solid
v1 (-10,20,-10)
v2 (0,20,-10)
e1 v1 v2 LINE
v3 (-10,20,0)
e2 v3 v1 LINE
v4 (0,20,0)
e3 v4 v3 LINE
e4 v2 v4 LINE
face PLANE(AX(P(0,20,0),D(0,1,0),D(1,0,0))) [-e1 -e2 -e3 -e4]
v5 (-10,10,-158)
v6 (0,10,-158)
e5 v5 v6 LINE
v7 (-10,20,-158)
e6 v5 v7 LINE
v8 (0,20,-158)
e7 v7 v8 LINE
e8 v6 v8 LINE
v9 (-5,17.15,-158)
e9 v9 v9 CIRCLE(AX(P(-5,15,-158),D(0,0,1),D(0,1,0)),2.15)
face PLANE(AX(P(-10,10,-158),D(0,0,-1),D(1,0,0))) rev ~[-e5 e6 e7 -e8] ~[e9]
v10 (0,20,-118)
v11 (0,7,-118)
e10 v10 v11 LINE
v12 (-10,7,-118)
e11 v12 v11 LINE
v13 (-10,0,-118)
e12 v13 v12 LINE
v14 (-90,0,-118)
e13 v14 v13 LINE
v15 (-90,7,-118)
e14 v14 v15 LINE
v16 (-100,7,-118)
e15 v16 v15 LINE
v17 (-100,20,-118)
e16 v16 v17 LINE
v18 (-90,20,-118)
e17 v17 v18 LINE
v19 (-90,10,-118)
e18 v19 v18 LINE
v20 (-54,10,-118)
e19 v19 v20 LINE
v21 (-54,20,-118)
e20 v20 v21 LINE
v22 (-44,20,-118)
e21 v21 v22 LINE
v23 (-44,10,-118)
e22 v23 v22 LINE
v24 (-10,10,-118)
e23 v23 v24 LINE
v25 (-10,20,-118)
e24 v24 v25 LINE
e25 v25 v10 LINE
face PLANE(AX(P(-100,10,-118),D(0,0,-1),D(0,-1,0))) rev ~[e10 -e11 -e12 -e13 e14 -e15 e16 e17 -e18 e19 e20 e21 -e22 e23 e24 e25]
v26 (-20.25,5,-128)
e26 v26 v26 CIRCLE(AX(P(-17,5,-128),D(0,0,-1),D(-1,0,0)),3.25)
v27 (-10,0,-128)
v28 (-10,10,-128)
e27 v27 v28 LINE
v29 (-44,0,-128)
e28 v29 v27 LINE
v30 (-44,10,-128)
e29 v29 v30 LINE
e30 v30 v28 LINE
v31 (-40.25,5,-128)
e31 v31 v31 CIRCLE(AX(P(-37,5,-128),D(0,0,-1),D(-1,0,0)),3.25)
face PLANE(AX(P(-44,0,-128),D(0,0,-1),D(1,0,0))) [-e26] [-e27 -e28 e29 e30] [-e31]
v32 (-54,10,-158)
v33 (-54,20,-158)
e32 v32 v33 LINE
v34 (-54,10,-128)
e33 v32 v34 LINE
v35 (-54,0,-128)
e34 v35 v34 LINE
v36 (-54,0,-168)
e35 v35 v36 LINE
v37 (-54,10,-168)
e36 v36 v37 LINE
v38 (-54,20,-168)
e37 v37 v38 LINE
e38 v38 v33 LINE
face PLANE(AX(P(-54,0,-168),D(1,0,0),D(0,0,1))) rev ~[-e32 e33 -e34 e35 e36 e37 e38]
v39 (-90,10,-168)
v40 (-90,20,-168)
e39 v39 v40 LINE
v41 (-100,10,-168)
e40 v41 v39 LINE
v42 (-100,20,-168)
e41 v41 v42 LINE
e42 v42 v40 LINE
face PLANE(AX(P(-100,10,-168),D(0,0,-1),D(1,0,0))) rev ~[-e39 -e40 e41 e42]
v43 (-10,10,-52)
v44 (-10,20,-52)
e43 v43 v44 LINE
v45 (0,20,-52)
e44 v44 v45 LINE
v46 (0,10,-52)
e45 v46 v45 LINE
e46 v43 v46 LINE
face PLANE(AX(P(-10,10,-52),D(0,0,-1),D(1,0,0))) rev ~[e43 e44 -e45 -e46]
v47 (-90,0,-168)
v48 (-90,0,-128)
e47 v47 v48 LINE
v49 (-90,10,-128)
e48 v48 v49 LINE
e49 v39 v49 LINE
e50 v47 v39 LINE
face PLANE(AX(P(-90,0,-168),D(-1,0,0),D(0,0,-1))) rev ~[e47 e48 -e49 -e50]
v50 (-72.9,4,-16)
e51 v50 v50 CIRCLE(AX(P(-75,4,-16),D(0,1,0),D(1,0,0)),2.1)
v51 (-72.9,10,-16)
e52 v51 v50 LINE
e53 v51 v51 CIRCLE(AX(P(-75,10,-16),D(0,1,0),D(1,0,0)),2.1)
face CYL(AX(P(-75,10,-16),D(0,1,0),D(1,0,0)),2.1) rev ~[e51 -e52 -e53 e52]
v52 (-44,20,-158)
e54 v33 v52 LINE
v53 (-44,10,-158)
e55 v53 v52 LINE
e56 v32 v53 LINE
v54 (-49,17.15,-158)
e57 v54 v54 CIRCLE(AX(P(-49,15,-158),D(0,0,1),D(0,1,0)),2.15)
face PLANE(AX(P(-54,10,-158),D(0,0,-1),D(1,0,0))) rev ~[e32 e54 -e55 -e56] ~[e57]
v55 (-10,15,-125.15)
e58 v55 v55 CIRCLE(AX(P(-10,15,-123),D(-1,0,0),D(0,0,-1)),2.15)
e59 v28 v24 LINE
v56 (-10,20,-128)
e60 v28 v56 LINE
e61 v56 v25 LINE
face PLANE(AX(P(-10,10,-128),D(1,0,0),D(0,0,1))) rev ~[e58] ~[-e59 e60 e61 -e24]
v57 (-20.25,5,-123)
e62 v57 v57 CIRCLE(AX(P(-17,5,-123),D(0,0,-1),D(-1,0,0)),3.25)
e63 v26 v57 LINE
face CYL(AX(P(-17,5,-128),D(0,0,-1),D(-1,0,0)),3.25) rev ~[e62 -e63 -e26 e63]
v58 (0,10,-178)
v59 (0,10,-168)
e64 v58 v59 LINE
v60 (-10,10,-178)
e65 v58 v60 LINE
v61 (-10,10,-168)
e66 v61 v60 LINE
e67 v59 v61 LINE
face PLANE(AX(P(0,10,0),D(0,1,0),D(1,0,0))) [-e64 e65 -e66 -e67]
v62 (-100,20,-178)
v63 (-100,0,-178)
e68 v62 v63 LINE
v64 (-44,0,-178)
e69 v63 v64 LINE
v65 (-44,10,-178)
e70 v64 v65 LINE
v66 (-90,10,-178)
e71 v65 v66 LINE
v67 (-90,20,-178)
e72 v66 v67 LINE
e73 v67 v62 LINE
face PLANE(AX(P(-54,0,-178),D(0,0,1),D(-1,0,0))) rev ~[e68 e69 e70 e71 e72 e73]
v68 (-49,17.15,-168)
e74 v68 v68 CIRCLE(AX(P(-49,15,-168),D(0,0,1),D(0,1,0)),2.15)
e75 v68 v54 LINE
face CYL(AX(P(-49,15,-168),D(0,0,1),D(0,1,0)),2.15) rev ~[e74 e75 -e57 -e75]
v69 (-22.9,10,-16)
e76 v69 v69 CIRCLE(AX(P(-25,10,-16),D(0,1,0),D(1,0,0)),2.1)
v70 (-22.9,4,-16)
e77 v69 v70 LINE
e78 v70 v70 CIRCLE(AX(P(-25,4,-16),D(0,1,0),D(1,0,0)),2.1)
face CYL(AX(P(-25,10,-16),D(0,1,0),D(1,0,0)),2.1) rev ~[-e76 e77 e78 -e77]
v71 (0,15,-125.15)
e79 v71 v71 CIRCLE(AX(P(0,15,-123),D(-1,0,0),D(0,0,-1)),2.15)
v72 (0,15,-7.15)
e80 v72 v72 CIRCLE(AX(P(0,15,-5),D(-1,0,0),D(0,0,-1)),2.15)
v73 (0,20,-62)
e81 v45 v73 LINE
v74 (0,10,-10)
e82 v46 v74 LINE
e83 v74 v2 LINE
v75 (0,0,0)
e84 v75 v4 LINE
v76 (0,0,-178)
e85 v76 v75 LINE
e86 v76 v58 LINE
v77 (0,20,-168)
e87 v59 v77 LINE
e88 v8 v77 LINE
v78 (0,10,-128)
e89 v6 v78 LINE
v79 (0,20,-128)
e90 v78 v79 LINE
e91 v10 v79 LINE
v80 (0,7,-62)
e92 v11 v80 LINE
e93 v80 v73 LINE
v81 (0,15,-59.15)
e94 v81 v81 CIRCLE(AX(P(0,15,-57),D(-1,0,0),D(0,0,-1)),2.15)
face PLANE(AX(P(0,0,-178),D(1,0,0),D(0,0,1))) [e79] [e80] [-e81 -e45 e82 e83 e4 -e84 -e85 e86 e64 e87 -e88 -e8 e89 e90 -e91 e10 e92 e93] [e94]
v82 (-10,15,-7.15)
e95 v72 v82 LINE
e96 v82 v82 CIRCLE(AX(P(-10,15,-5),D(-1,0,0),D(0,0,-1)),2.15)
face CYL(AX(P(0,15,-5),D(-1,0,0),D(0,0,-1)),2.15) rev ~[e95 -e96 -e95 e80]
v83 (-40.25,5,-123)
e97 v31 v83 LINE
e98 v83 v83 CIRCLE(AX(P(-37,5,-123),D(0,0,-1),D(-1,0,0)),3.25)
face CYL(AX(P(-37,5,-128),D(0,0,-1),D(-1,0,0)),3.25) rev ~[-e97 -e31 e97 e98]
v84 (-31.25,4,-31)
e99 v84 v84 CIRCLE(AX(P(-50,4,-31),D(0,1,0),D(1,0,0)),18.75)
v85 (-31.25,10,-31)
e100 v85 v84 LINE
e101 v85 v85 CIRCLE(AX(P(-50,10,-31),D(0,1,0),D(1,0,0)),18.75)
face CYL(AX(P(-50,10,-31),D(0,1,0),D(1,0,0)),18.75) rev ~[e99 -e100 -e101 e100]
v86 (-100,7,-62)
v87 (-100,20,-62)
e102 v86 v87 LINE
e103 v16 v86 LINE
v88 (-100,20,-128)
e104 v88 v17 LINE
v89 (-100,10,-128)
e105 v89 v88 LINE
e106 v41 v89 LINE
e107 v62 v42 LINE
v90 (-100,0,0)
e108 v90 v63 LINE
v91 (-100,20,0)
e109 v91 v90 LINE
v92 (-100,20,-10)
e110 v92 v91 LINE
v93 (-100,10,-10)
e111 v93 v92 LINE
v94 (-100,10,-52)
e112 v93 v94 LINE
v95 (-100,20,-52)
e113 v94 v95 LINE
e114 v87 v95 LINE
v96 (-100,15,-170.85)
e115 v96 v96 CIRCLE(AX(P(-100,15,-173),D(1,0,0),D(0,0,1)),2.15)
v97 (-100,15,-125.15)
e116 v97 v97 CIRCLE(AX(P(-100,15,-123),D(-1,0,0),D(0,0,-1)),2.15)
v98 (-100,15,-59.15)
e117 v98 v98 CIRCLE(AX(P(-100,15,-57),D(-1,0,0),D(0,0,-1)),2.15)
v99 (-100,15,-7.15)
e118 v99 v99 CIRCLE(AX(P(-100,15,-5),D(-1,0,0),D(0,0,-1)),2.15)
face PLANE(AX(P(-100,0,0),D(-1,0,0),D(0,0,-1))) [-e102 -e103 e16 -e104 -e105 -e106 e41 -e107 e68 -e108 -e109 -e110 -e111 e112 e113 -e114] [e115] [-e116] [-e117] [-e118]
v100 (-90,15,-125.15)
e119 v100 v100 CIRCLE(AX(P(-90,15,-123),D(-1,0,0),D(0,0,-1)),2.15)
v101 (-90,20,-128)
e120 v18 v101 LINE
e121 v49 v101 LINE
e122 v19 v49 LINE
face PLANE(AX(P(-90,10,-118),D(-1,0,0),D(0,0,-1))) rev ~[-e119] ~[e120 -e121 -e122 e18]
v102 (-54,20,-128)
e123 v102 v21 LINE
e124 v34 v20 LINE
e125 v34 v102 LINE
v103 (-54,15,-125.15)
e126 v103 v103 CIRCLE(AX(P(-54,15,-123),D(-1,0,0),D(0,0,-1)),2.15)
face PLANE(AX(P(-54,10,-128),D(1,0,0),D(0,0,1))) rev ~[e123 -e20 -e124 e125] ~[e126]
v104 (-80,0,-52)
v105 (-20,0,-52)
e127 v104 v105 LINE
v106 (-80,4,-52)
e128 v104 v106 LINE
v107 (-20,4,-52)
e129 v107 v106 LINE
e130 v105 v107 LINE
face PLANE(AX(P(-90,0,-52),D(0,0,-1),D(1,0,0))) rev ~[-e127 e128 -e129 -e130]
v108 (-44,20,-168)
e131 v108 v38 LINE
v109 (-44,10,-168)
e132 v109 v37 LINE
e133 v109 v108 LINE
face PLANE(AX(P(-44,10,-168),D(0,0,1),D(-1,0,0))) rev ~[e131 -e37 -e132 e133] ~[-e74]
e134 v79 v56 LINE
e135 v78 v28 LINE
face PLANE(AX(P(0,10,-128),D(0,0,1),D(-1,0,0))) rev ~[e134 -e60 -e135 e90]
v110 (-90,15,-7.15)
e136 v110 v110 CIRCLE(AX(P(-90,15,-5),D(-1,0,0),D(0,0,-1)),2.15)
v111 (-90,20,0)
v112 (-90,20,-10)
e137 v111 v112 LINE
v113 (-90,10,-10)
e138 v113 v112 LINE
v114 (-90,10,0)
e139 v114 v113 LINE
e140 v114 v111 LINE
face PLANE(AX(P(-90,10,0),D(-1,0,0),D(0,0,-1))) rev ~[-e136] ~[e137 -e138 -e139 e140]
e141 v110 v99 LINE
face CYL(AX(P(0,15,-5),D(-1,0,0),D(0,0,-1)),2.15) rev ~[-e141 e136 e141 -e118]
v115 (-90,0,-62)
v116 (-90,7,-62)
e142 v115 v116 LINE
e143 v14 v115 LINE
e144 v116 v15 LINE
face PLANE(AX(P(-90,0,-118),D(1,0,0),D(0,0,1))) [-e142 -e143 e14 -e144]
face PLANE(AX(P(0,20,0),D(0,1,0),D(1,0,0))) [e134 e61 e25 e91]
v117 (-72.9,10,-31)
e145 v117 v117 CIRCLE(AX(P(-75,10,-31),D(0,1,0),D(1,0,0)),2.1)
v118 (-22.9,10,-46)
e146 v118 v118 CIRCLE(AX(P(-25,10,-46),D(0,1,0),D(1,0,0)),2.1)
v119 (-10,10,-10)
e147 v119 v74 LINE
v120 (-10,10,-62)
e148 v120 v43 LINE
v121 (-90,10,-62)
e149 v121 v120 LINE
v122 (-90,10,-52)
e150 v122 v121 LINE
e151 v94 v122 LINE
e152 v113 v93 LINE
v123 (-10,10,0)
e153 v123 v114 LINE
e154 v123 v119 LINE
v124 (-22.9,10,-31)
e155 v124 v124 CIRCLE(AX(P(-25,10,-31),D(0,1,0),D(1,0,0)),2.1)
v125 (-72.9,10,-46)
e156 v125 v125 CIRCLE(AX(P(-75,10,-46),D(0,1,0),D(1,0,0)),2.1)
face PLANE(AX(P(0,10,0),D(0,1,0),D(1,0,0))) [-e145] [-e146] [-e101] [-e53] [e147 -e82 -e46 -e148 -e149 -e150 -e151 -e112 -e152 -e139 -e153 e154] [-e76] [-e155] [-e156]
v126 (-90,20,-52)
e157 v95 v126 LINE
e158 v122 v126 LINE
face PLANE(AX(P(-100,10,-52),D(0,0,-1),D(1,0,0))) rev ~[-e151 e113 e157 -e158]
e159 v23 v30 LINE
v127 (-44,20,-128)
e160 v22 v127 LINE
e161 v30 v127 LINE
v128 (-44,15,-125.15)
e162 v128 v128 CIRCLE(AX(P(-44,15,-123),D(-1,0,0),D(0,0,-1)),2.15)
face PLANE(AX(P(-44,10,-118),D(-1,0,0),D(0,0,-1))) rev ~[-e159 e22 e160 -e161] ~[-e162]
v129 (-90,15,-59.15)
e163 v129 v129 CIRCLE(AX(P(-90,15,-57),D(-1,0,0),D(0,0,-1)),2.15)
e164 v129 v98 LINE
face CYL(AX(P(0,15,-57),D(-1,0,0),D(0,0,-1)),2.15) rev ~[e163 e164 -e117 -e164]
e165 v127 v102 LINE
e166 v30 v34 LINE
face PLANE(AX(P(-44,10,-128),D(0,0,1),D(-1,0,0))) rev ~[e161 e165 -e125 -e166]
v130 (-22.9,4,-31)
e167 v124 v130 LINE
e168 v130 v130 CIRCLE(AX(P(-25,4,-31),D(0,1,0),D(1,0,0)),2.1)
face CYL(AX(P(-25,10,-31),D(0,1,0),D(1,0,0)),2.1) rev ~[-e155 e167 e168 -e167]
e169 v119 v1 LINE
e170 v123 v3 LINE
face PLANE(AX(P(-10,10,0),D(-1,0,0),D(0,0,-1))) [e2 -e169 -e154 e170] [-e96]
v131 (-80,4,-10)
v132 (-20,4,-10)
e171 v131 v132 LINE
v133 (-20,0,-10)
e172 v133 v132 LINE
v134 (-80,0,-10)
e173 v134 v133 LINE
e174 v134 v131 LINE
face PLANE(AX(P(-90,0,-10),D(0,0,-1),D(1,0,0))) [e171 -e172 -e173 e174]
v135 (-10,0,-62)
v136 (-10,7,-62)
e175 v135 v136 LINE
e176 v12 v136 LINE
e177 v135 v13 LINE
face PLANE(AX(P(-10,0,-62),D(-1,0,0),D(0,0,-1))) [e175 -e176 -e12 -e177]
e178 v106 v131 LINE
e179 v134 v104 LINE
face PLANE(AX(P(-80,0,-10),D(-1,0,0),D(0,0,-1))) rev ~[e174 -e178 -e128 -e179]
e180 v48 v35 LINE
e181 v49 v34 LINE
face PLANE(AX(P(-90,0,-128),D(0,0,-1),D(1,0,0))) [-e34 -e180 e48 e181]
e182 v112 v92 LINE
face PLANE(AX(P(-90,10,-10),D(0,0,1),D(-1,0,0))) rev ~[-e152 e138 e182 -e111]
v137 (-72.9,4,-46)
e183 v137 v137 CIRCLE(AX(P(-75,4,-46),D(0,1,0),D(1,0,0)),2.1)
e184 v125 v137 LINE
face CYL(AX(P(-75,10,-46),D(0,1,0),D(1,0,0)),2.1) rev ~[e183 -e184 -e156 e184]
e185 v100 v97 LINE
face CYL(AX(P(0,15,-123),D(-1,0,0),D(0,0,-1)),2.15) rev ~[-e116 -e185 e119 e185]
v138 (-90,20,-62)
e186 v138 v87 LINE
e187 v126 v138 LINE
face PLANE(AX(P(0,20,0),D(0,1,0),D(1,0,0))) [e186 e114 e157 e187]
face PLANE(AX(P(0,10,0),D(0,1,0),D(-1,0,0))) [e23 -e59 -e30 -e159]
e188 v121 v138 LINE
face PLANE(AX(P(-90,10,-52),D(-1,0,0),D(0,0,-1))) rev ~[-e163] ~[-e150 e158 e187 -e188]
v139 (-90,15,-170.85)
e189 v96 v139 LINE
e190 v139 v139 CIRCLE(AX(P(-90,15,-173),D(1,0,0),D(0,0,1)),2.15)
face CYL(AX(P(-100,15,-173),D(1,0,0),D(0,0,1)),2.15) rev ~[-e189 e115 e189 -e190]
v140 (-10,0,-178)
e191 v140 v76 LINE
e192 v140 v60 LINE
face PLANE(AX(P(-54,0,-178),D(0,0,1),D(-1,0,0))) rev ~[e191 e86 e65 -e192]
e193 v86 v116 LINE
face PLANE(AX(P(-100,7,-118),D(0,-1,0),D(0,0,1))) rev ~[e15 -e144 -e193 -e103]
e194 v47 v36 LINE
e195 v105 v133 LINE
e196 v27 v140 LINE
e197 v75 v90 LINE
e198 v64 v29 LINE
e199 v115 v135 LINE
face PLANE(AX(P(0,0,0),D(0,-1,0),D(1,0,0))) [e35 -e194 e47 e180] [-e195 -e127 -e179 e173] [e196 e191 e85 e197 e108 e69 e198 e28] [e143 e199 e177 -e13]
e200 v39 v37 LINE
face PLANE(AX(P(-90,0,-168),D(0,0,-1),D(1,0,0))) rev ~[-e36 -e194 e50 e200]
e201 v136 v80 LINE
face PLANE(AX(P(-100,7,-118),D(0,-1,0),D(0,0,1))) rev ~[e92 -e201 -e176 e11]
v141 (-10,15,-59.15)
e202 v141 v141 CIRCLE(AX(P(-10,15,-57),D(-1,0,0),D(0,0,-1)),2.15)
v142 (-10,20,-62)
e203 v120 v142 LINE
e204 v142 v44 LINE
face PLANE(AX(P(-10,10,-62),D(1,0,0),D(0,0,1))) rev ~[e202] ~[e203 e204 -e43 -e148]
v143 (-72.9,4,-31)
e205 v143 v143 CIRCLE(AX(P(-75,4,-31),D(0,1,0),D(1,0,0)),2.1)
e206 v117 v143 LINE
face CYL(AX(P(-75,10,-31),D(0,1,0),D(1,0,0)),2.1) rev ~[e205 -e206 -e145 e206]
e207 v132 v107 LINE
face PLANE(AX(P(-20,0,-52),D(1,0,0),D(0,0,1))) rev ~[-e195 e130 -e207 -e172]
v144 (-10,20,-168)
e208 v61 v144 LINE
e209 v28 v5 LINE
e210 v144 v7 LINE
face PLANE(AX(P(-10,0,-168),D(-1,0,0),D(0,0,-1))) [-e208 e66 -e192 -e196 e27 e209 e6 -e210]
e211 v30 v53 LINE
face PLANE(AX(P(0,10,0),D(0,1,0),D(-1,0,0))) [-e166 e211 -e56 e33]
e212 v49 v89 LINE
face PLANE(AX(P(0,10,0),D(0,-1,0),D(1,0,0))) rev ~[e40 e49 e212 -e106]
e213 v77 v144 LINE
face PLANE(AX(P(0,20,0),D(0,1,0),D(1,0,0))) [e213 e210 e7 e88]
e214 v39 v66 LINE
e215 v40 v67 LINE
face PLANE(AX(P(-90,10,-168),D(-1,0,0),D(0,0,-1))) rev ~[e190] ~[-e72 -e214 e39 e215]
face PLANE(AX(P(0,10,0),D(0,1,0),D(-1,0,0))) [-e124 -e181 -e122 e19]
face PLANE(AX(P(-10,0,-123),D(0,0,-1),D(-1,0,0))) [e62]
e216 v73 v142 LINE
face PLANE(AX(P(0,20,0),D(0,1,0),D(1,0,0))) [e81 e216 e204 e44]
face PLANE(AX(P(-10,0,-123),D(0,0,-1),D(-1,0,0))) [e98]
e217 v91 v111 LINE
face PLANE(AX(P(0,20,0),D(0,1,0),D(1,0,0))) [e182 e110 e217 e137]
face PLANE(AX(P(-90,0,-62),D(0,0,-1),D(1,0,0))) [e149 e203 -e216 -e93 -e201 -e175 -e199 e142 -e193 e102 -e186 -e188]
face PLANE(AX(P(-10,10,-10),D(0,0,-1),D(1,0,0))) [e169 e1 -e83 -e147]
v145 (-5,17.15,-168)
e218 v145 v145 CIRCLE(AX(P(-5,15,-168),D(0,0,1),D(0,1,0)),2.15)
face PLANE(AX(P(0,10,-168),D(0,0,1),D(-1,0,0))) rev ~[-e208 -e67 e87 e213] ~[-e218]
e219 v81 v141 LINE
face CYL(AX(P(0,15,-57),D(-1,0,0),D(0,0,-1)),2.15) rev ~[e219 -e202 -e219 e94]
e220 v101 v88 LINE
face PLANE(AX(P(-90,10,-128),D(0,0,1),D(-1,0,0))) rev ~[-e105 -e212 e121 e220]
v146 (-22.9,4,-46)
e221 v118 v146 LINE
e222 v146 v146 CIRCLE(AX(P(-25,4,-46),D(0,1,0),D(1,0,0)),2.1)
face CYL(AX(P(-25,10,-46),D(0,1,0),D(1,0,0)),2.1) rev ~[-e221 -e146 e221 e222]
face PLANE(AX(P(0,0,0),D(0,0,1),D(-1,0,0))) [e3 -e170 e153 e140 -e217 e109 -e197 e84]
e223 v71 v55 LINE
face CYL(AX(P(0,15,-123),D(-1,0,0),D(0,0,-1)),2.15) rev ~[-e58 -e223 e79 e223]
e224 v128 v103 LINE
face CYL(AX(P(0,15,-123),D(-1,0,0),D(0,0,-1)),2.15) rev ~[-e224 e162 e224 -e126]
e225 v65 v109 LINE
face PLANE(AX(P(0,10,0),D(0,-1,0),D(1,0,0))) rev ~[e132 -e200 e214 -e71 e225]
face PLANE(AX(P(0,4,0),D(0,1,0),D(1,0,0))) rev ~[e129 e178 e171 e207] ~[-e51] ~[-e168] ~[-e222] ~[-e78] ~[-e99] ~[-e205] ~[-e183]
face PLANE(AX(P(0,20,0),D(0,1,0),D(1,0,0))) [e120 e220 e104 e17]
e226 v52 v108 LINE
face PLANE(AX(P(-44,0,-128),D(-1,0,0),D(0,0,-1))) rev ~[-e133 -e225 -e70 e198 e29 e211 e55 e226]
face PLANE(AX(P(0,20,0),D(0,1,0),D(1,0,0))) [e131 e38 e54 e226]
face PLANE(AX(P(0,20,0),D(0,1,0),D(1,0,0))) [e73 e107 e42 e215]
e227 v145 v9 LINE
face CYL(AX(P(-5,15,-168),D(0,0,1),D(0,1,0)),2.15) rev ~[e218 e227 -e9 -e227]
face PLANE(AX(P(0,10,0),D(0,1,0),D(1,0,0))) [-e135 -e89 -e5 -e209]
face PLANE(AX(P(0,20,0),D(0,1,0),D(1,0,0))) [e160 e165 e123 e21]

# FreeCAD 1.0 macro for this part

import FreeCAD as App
import Part
import Sketcher
from FreeCAD import Vector
Q = App.Units.Quantity


def add_polygon(sketch, points):
    """Adds a closed chain of lines whose ends are joined by coincident constraints."""
    first, n = sketch.GeometryCount, len(points)
    for a, b in zip(points, points[1:] + points[:1]):
        sketch.addGeometry(Part.LineSegment(App.Vector(*a, 0), App.Vector(*b, 0)), False)
    for i in range(n):
        sketch.addConstraint(Sketcher.Constraint("Coincident", first + i, 2, first + (i + 1) % n, 1))

doc = App.newDocument("Part")
body = doc.addObject("PartDesign::Body", "Body")

sketch1 = body.newObject("Sketcher::SketchObject", "Sketch")
sketch1.AttachmentSupport = (doc.getObject("XZ_Plane"), [""])
sketch1.MapMode = "FlatFace"
add_polygon(sketch1, [(-100, 0), (0, 0), (0, -178), (-54, -178), (-54, -128), (-90, -128), (-90, -178), (-100, -178)])
add_polygon(sketch1, [(-10, -168), (-10, -128), (-44, -128), (-44, -168)])
add_polygon(sketch1, [(-10, -62), (-90, -62), (-90, -118), (-10, -118)])
add_polygon(sketch1, [(-10, -10), (-90, -10), (-90, -52), (-10, -52)])
sketch1.addConstraint(Sketcher.Constraint("Horizontal", 0))
sketch1.addConstraint(Sketcher.Constraint("Vertical", 1))
sketch1.addConstraint(Sketcher.Constraint("Horizontal", 2))
sketch1.addConstraint(Sketcher.Constraint("Vertical", 3))
sketch1.addConstraint(Sketcher.Constraint("Horizontal", 4))
sketch1.addConstraint(Sketcher.Constraint("Vertical", 5))
sketch1.addConstraint(Sketcher.Constraint("Horizontal", 6))
sketch1.addConstraint(Sketcher.Constraint("Vertical", 7))
sketch1.addConstraint(Sketcher.Constraint("Vertical", 8))
sketch1.addConstraint(Sketcher.Constraint("Horizontal", 9))
sketch1.addConstraint(Sketcher.Constraint("Vertical", 10))
sketch1.addConstraint(Sketcher.Constraint("Horizontal", 11))
sketch1.addConstraint(Sketcher.Constraint("Horizontal", 12))
sketch1.addConstraint(Sketcher.Constraint("Vertical", 13))
sketch1.addConstraint(Sketcher.Constraint("Horizontal", 14))
sketch1.addConstraint(Sketcher.Constraint("Vertical", 15))
sketch1.addConstraint(Sketcher.Constraint("Horizontal", 16))
sketch1.addConstraint(Sketcher.Constraint("Vertical", 17))
sketch1.addConstraint(Sketcher.Constraint("Horizontal", 18))
sketch1.addConstraint(Sketcher.Constraint("Vertical", 19))
sketch1.addConstraint(Sketcher.Constraint("Coincident", 0, 2, -1, 1))
sketch1.addConstraint(Sketcher.Constraint("Horizontal", 2, 2, 5, 2))
sketch1.addConstraint(Sketcher.Constraint("Horizontal", 4, 2, 8, 2))
sketch1.addConstraint(Sketcher.Constraint("Vertical", 5, 2, 12, 2))
sketch1.addConstraint(Sketcher.Constraint("Vertical", 11, 2, 14, 2))
sketch1.addConstraint(Sketcher.Constraint("Vertical", 13, 2, 16, 2))
sketch1.addConstraint(Sketcher.Constraint("Vertical", 15, 2, 18, 2))
sketch1.addConstraint(Sketcher.Constraint("DistanceX", 4, 2, 4, 1, Q("36 mm")))
sketch1.addConstraint(Sketcher.Constraint("DistanceX", 6, 2, 6, 1, Q("10 mm")))
sketch1.addConstraint(Sketcher.Constraint("DistanceX", 9, 2, 9, 1, Q("34 mm")))
sketch1.addConstraint(Sketcher.Constraint("DistanceX", 12, 2, 12, 1, Q("80 mm")))
sketch1.addConstraint(Sketcher.Constraint("DistanceY", 8, 1, 8, 2, Q("40 mm")))
sketch1.addConstraint(Sketcher.Constraint("DistanceY", 13, 2, 13, 1, Q("56 mm")))
sketch1.addConstraint(Sketcher.Constraint("DistanceY", 17, 2, 17, 1, Q("42 mm")))
sketch1.addConstraint(Sketcher.Constraint("DistanceX", 8, 2, -1, 1, Q("10 mm")))
sketch1.addConstraint(Sketcher.Constraint("DistanceY", 16, 2, -1, 1, Q("10 mm")))
sketch1.addConstraint(Sketcher.Constraint("DistanceY", 2, 2, 10, 2, Q("10 mm")))
sketch1.addConstraint(Sketcher.Constraint("DistanceY", 4, 2, 13, 2, Q("10 mm")))
sketch1.addConstraint(Sketcher.Constraint("DistanceY", 12, 2, 17, 2, Q("10 mm")))
pad1 = body.newObject("PartDesign::Pad", "Pad")
pad1.Profile = sketch1
pad1.Length = 10
pad1.Reversed = True

sketch2 = body.newObject("Sketcher::SketchObject", "Sketch001")
sketch2.AttachmentSupport = (doc.getObject("XZ_Plane"), [""])
sketch2.MapMode = "FlatFace"
sketch2.AttachmentOffset = App.Placement(Vector(0, 0, -10), App.Rotation())
add_polygon(sketch2, [(-100, -10), (-100, 0), (-90, 0), (-90, -10)])
add_polygon(sketch2, [(-10, -10), (-10, 0), (0, 0), (0, -10)])
add_polygon(sketch2, [(-100, -62), (-100, -52), (-90, -52), (-90, -62)])
add_polygon(sketch2, [(-10, -62), (-10, -52), (0, -52), (0, -62)])
add_polygon(sketch2, [(-100, -128), (-100, -118), (-90, -118), (-90, -128)])
add_polygon(sketch2, [(-100, -168), (-100, -158), (-90, -158), (-90, -168)])
add_polygon(sketch2, [(-54, -128), (-54, -118), (-44, -118), (-44, -128)])
add_polygon(sketch2, [(-10, -118), (0, -118), (0, -128), (-10, -128)])
add_polygon(sketch2, [(-10, -168), (0, -168), (0, -178), (-10, -178)])
add_polygon(sketch2, [(-54, -158), (-44, -158), (-44, -168), (-54, -168)])
sketch2.addConstraint(Sketcher.Constraint("Vertical", 0))
sketch2.addConstraint(Sketcher.Constraint("Horizontal", 1))
sketch2.addConstraint(Sketcher.Constraint("Vertical", 2))
sketch2.addConstraint(Sketcher.Constraint("Horizontal", 3))
sketch2.addConstraint(Sketcher.Constraint("Vertical", 4))
sketch2.addConstraint(Sketcher.Constraint("Horizontal", 5))
sketch2.addConstraint(Sketcher.Constraint("Vertical", 6))
sketch2.addConstraint(Sketcher.Constraint("Horizontal", 7))
sketch2.addConstraint(Sketcher.Constraint("Vertical", 8))
sketch2.addConstraint(Sketcher.Constraint("Horizontal", 9))
sketch2.addConstraint(Sketcher.Constraint("Vertical", 10))
sketch2.addConstraint(Sketcher.Constraint("Horizontal", 11))
sketch2.addConstraint(Sketcher.Constraint("Vertical", 12))
sketch2.addConstraint(Sketcher.Constraint("Horizontal", 13))
sketch2.addConstraint(Sketcher.Constraint("Vertical", 14))
sketch2.addConstraint(Sketcher.Constraint("Horizontal", 15))
sketch2.addConstraint(Sketcher.Constraint("Vertical", 16))
sketch2.addConstraint(Sketcher.Constraint("Horizontal", 17))
sketch2.addConstraint(Sketcher.Constraint("Vertical", 18))
sketch2.addConstraint(Sketcher.Constraint("Horizontal", 19))
sketch2.addConstraint(Sketcher.Constraint("Vertical", 20))
sketch2.addConstraint(Sketcher.Constraint("Horizontal", 21))
sketch2.addConstraint(Sketcher.Constraint("Vertical", 22))
sketch2.addConstraint(Sketcher.Constraint("Horizontal", 23))
sketch2.addConstraint(Sketcher.Constraint("Vertical", 24))
sketch2.addConstraint(Sketcher.Constraint("Horizontal", 25))
sketch2.addConstraint(Sketcher.Constraint("Vertical", 26))
sketch2.addConstraint(Sketcher.Constraint("Horizontal", 27))
sketch2.addConstraint(Sketcher.Constraint("Horizontal", 28))
sketch2.addConstraint(Sketcher.Constraint("Vertical", 29))
sketch2.addConstraint(Sketcher.Constraint("Horizontal", 30))
sketch2.addConstraint(Sketcher.Constraint("Vertical", 31))
sketch2.addConstraint(Sketcher.Constraint("Horizontal", 32))
sketch2.addConstraint(Sketcher.Constraint("Vertical", 33))
sketch2.addConstraint(Sketcher.Constraint("Horizontal", 34))
sketch2.addConstraint(Sketcher.Constraint("Vertical", 35))
sketch2.addConstraint(Sketcher.Constraint("Horizontal", 36))
sketch2.addConstraint(Sketcher.Constraint("Vertical", 37))
sketch2.addConstraint(Sketcher.Constraint("Horizontal", 38))
sketch2.addConstraint(Sketcher.Constraint("Vertical", 39))
sketch2.addConstraint(Sketcher.Constraint("Coincident", 5, 2, -1, 1))
sketch2.addConstraint(Sketcher.Constraint("PointOnObject", 0, 2, -1))
sketch2.addConstraint(Sketcher.Constraint("PointOnObject", 13, 2, -2))
sketch2.addConstraint(Sketcher.Constraint("PointOnObject", 28, 2, -2))
sketch2.addConstraint(Sketcher.Constraint("PointOnObject", 32, 2, -2))
sketch2.addConstraint(Sketcher.Constraint("Horizontal", 3, 2, 6, 2))
sketch2.addConstraint(Sketcher.Constraint("Horizontal", 9, 2, 12, 2))
sketch2.addConstraint(Sketcher.Constraint("Horizontal", 11, 2, 14, 2))
sketch2.addConstraint(Sketcher.Constraint("Horizontal", 17, 2, 24, 2))
sketch2.addConstraint(Sketcher.Constraint("Horizontal", 19, 2, 26, 2))
sketch2.addConstraint(Sketcher.Constraint("Horizontal", 25, 2, 28, 2))
sketch2.addConstraint(Sketcher.Constraint("Horizontal", 27, 2, 29, 2))
sketch2.addConstraint(Sketcher.Constraint("Horizontal", 23, 2, 32, 2))
sketch2.addConstraint(Sketcher.Constraint("Horizontal", 21, 2, 36, 2))
sketch2.addConstraint(Sketcher.Constraint("Horizontal", 35, 2, 37, 2))
sketch2.addConstraint(Sketcher.Constraint("Vertical", 3, 2, 8, 2))
sketch2.addConstraint(Sketcher.Constraint("Vertical", 2, 2, 9, 2))
sketch2.addConstraint(Sketcher.Constraint("Vertical", 7, 2, 12, 2))
sketch2.addConstraint(Sketcher.Constraint("Vertical", 11, 2, 16, 2))
sketch2.addConstraint(Sketcher.Constraint("Vertical", 10, 2, 17, 2))
sketch2.addConstraint(Sketcher.Constraint("Vertical", 19, 2, 20, 2))
sketch2.addConstraint(Sketcher.Constraint("Vertical", 18, 2, 21, 2))
sketch2.addConstraint(Sketcher.Constraint("Vertical", 15, 2, 30, 2))
sketch2.addConstraint(Sketcher.Constraint("Vertical", 31, 2, 34, 2))
sketch2.addConstraint(Sketcher.Constraint("Vertical", 26, 2, 36, 2))
sketch2.addConstraint(Sketcher.Constraint("Vertical", 27, 2, 38, 2))
sketch2.addConstraint(Sketcher.Constraint("Equal", 3, 5))
sketch2.addConstraint(Sketcher.Constraint("Equal", 23, 25))
sketch2.addConstraint(Sketcher.Constraint("Equal", 38, 0))
sketch2.addConstraint(Sketcher.Constraint("Equal", 6, 8))
sketch2.addConstraint(Sketcher.Constraint("Equal", 14, 16))
sketch2.addConstraint(Sketcher.Constraint("Equal", 18, 20))
sketch2.addConstraint(Sketcher.Constraint("Equal", 31, 33))
sketch2.addConstraint(Sketcher.Constraint("DistanceX", 1, 1, 1, 2, Q("10 mm")))
sketch2.addConstraint(Sketcher.Constraint("DistanceX", 0, 2, -1, 1, Q("100 mm")))
sketch2.addConstraint(Sketcher.Constraint("DistanceY", 8, 2, -1, 1, Q("52 mm")))
sketch2.addConstraint(Sketcher.Constraint("DistanceY", 16, 2, -1, 1, Q("118 mm")))
sketch2.addConstraint(Sketcher.Constraint("DistanceY", 20, 2, -1, 1, Q("158 mm")))
sketch2.addConstraint(Sketcher.Constraint("DistanceX", 24, 2, -1, 1, Q("54 mm")))
pad2 = body.newObject("PartDesign::Pad", "Pad001")
pad2.Profile = sketch2
pad2.Length = 10
pad2.Reversed = True

sketch3 = body.newObject("Sketcher::SketchObject", "Sketch002")
sketch3.AttachmentSupport = (doc.getObject("XZ_Plane"), [""])
sketch3.MapMode = "FlatFace"
add_polygon(sketch3, [(-80, -10), (-90, -10), (-90, -52), (-80, -52)])
add_polygon(sketch3, [(-10, -10), (-20, -10), (-20, -52), (-10, -52)])
sketch3.addConstraint(Sketcher.Constraint("Horizontal", 0))
sketch3.addConstraint(Sketcher.Constraint("Vertical", 1))
sketch3.addConstraint(Sketcher.Constraint("Horizontal", 2))
sketch3.addConstraint(Sketcher.Constraint("Vertical", 3))
sketch3.addConstraint(Sketcher.Constraint("Horizontal", 4))
sketch3.addConstraint(Sketcher.Constraint("Vertical", 5))
sketch3.addConstraint(Sketcher.Constraint("Horizontal", 6))
sketch3.addConstraint(Sketcher.Constraint("Vertical", 7))
sketch3.addConstraint(Sketcher.Constraint("Horizontal", 3, 2, 4, 2))
sketch3.addConstraint(Sketcher.Constraint("Horizontal", 2, 2, 5, 2))
sketch3.addConstraint(Sketcher.Constraint("Equal", 2, 4))
sketch3.addConstraint(Sketcher.Constraint("DistanceX", 0, 2, 0, 1, Q("10 mm")))
sketch3.addConstraint(Sketcher.Constraint("DistanceY", 0, 2, -1, 1, Q("10 mm")))
sketch3.addConstraint(Sketcher.Constraint("DistanceX", 6, 2, -1, 1, Q("10 mm")))
sketch3.addConstraint(Sketcher.Constraint("DistanceX", 3, 2, 4, 2, Q("60 mm")))
sketch3.addConstraint(Sketcher.Constraint("DistanceY", 1, 2, 1, 1, Q("42 mm")))
pad3 = body.newObject("PartDesign::Pad", "Pad002")
pad3.Profile = sketch3
pad3.Length = 10
pad3.Reversed = True

sketch4 = body.newObject("Sketcher::SketchObject", "Sketch003")
sketch4.AttachmentSupport = (doc.getObject("XZ_Plane"), [""])
sketch4.MapMode = "FlatFace"
sketch4.AttachmentOffset = App.Placement(Vector(0, 0, -10), App.Rotation())
add_polygon(sketch4, [(-80, -52), (-80, -10), (-20, -10), (-20, -52)])
sketch4.addGeometry(Part.Circle(Vector(-75, -16, 0), Vector(0, 0, 1), 2.1), False)
sketch4.addGeometry(Part.Circle(Vector(-25, -16, 0), Vector(0, 0, 1), 2.1), False)
sketch4.addGeometry(Part.Circle(Vector(-75, -31, 0), Vector(0, 0, 1), 2.1), False)
sketch4.addGeometry(Part.Circle(Vector(-75, -46, 0), Vector(0, 0, 1), 2.1), False)
sketch4.addGeometry(Part.Circle(Vector(-50, -31, 0), Vector(0, 0, 1), 18.75), False)
sketch4.addGeometry(Part.Circle(Vector(-25, -31, 0), Vector(0, 0, 1), 2.1), False)
sketch4.addGeometry(Part.Circle(Vector(-25, -46, 0), Vector(0, 0, 1), 2.1), False)
sketch4.addConstraint(Sketcher.Constraint("Vertical", 0))
sketch4.addConstraint(Sketcher.Constraint("Horizontal", 1))
sketch4.addConstraint(Sketcher.Constraint("Vertical", 2))
sketch4.addConstraint(Sketcher.Constraint("Horizontal", 3))
sketch4.addConstraint(Sketcher.Constraint("Equal", 4, 5))
sketch4.addConstraint(Sketcher.Constraint("Equal", 5, 6))
sketch4.addConstraint(Sketcher.Constraint("Equal", 6, 7))
sketch4.addConstraint(Sketcher.Constraint("Equal", 7, 9))
sketch4.addConstraint(Sketcher.Constraint("Equal", 9, 10))
sketch4.addConstraint(Sketcher.Constraint("Horizontal", 4, 3, 5, 3))
sketch4.addConstraint(Sketcher.Constraint("Horizontal", 6, 3, 8, 3))
sketch4.addConstraint(Sketcher.Constraint("Horizontal", 8, 3, 9, 3))
sketch4.addConstraint(Sketcher.Constraint("Horizontal", 7, 3, 10, 3))
sketch4.addConstraint(Sketcher.Constraint("Vertical", 4, 3, 6, 3))
sketch4.addConstraint(Sketcher.Constraint("Vertical", 6, 3, 7, 3))
sketch4.addConstraint(Sketcher.Constraint("Vertical", 5, 3, 9, 3))
sketch4.addConstraint(Sketcher.Constraint("Vertical", 9, 3, 10, 3))
sketch4.addConstraint(Sketcher.Constraint("Diameter", 4, Q("4.2 mm")))
sketch4.addConstraint(Sketcher.Constraint("Diameter", 8, Q("37.5 mm")))
sketch4.addConstraint(Sketcher.Constraint("DistanceX", 5, 3, -1, 1, Q("25 mm")))
sketch4.addConstraint(Sketcher.Constraint("DistanceY", 6, 3, 4, 3, Q("15 mm")))
sketch4.addConstraint(Sketcher.Constraint("DistanceY", 7, 3, 6, 3, Q("15 mm")))
sketch4.addConstraint(Sketcher.Constraint("DistanceX", 6, 3, 8, 3, Q("25 mm")))
sketch4.addConstraint(Sketcher.Constraint("DistanceX", 8, 3, 5, 3, Q("25 mm")))
sketch4.addConstraint(Sketcher.Constraint("DistanceY", 6, 3, 0, 2, Q("21 mm")))
sketch4.addConstraint(Sketcher.Constraint("DistanceX", 0, 2, 8, 3, Q("30 mm")))
sketch4.addConstraint(Sketcher.Constraint("DistanceX", 8, 3, 1, 2, Q("30 mm")))
sketch4.addConstraint(Sketcher.Constraint("DistanceY", 2, 2, 9, 3, Q("21 mm")))
sketch4.addConstraint(Sketcher.Constraint("DistanceY", 4, 3, -1, 1, Q("16 mm")))
pad4 = body.newObject("PartDesign::Pad", "Pad003")
pad4.Profile = sketch4
pad4.Length = 6

sketch5 = body.newObject("Sketcher::SketchObject", "Sketch004")
sketch5.AttachmentSupport = (doc.getObject("YZ_Plane"), [""])
sketch5.MapMode = "FlatFace"
sketch5.addGeometry(Part.Circle(Vector(15, -173, 0), Vector(0, 0, 1), 2.15), False)
sketch5.addConstraint(Sketcher.Constraint("Diameter", 0, Q("4.3 mm")))
sketch5.addConstraint(Sketcher.Constraint("DistanceX", -1, 1, 0, 3, Q("15 mm")))
sketch5.addConstraint(Sketcher.Constraint("DistanceY", 0, 3, -1, 1, Q("173 mm")))
doc.recompute()
hole = body.newObject("PartDesign::Hole", "Hole")
hole.Profile = sketch5
hole.ThreadType = "None"
hole.Diameter = 4.3
hole.DepthType = "ThroughAll"

sketch6 = body.newObject("Sketcher::SketchObject", "Sketch005")
sketch6.AttachmentSupport = (doc.getObject("YZ_Plane"), [""])
sketch6.MapMode = "FlatFace"
sketch6.addGeometry(Part.Circle(Vector(15, -123, 0), Vector(0, 0, 1), 2.15), False)
sketch6.addConstraint(Sketcher.Constraint("Diameter", 0, Q("4.3 mm")))
sketch6.addConstraint(Sketcher.Constraint("DistanceX", -1, 1, 0, 3, Q("15 mm")))
sketch6.addConstraint(Sketcher.Constraint("DistanceY", 0, 3, -1, 1, Q("123 mm")))
doc.recompute()
hole2 = body.newObject("PartDesign::Hole", "Hole001")
hole2.Profile = sketch6
hole2.ThreadType = "None"
hole2.Diameter = 4.3
hole2.DepthType = "ThroughAll"

sketch7 = body.newObject("Sketcher::SketchObject", "Sketch006")
sketch7.AttachmentSupport = (doc.getObject("YZ_Plane"), [""])
sketch7.MapMode = "FlatFace"
sketch7.addGeometry(Part.Circle(Vector(15, -57, 0), Vector(0, 0, 1), 2.15), False)
sketch7.addConstraint(Sketcher.Constraint("Diameter", 0, Q("4.3 mm")))
sketch7.addConstraint(Sketcher.Constraint("DistanceX", -1, 1, 0, 3, Q("15 mm")))
sketch7.addConstraint(Sketcher.Constraint("DistanceY", 0, 3, -1, 1, Q("57 mm")))
doc.recompute()
hole3 = body.newObject("PartDesign::Hole", "Hole002")
hole3.Profile = sketch7
hole3.ThreadType = "None"
hole3.Diameter = 4.3
hole3.DepthType = "ThroughAll"

sketch8 = body.newObject("Sketcher::SketchObject", "Sketch007")
sketch8.AttachmentSupport = (doc.getObject("YZ_Plane"), [""])
sketch8.MapMode = "FlatFace"
sketch8.addGeometry(Part.Circle(Vector(15, -5, 0), Vector(0, 0, 1), 2.15), False)
sketch8.addConstraint(Sketcher.Constraint("Diameter", 0, Q("4.3 mm")))
sketch8.addConstraint(Sketcher.Constraint("DistanceX", -1, 1, 0, 3, Q("15 mm")))
sketch8.addConstraint(Sketcher.Constraint("DistanceY", 0, 3, -1, 1, Q("5 mm")))
doc.recompute()
hole4 = body.newObject("PartDesign::Hole", "Hole003")
hole4.Profile = sketch8
hole4.ThreadType = "None"
hole4.Diameter = 4.3
hole4.DepthType = "ThroughAll"

sketch9 = body.newObject("Sketcher::SketchObject", "Sketch008")
sketch9.AttachmentSupport = (doc.getObject("YZ_Plane"), [""])
sketch9.MapMode = "FlatFace"
sketch9.AttachmentOffset = App.Placement(Vector(0, 0, -100), App.Rotation())
add_polygon(sketch9, [(7, -62), (10, -62), (10, -118), (7, -118)])
sketch9.addConstraint(Sketcher.Constraint("Horizontal", 0))
sketch9.addConstraint(Sketcher.Constraint("Vertical", 1))
sketch9.addConstraint(Sketcher.Constraint("Horizontal", 2))
sketch9.addConstraint(Sketcher.Constraint("Vertical", 3))
sketch9.addConstraint(Sketcher.Constraint("DistanceX", 0, 1, 0, 2, Q("3 mm")))
sketch9.addConstraint(Sketcher.Constraint("DistanceY", 1, 2, 1, 1, Q("56 mm")))
sketch9.addConstraint(Sketcher.Constraint("DistanceX", -1, 1, 0, 2, Q("10 mm")))
sketch9.addConstraint(Sketcher.Constraint("DistanceY", 0, 2, -1, 1, Q("62 mm")))
pocket1 = body.newObject("PartDesign::Pocket", "Pocket")
pocket1.Profile = sketch9
pocket1.Length = 100
pocket1.Reversed = True

sketch10 = body.newObject("Sketcher::SketchObject", "Sketch009")
sketch10.AttachmentSupport = (doc.getObject("XY_Plane"), [""])
sketch10.MapMode = "FlatFace"
sketch10.AttachmentOffset = App.Placement(Vector(0, 0, -168), App.Rotation())
sketch10.addGeometry(Part.Circle(Vector(-95, 15, 0), Vector(0, 0, 1), 2.15), False)
sketch10.addConstraint(Sketcher.Constraint("Diameter", 0, Q("4.3 mm")))
sketch10.addConstraint(Sketcher.Constraint("DistanceX", 0, 3, -1, 1, Q("95 mm")))
sketch10.addConstraint(Sketcher.Constraint("DistanceY", -1, 1, 0, 3, Q("15 mm")))
doc.recompute()
hole5 = body.newObject("PartDesign::Hole", "Hole004")
hole5.Profile = sketch10
hole5.ThreadType = "None"
hole5.Diameter = 4.3
hole5.DepthType = "Dimension"
hole5.Depth = 10
hole5.DrillPoint = "Angled"
hole5.DrillPointAngle = 118
hole5.Reversed = True

sketch11 = body.newObject("Sketcher::SketchObject", "Sketch010")
sketch11.AttachmentSupport = (doc.getObject("XY_Plane"), [""])
sketch11.MapMode = "FlatFace"
sketch11.AttachmentOffset = App.Placement(Vector(0, 0, -168), App.Rotation())
sketch11.addGeometry(Part.Circle(Vector(-49, 15, 0), Vector(0, 0, 1), 2.15), False)
sketch11.addConstraint(Sketcher.Constraint("Diameter", 0, Q("4.3 mm")))
sketch11.addConstraint(Sketcher.Constraint("DistanceX", 0, 3, -1, 1, Q("49 mm")))
sketch11.addConstraint(Sketcher.Constraint("DistanceY", -1, 1, 0, 3, Q("15 mm")))
doc.recompute()
hole6 = body.newObject("PartDesign::Hole", "Hole005")
hole6.Profile = sketch11
hole6.ThreadType = "None"
hole6.Diameter = 4.3
hole6.DepthType = "Dimension"
hole6.Depth = 10
hole6.DrillPoint = "Angled"
hole6.DrillPointAngle = 118
hole6.Reversed = True

sketch12 = body.newObject("Sketcher::SketchObject", "Sketch011")
sketch12.AttachmentSupport = (doc.getObject("XZ_Plane"), [""])
sketch12.MapMode = "FlatFace"
add_polygon(sketch12, [(-54, -168), (-90, -168), (-90, -178), (-54, -178)])
sketch12.addConstraint(Sketcher.Constraint("Horizontal", 0))
sketch12.addConstraint(Sketcher.Constraint("Vertical", 1))
sketch12.addConstraint(Sketcher.Constraint("Horizontal", 2))
sketch12.addConstraint(Sketcher.Constraint("Vertical", 3))
sketch12.addConstraint(Sketcher.Constraint("DistanceX", 0, 2, 0, 1, Q("36 mm")))
sketch12.addConstraint(Sketcher.Constraint("DistanceY", 1, 2, 1, 1, Q("10 mm")))
sketch12.addConstraint(Sketcher.Constraint("DistanceX", 0, 2, -1, 1, Q("90 mm")))
sketch12.addConstraint(Sketcher.Constraint("DistanceY", 0, 2, -1, 1, Q("168 mm")))
pad5 = body.newObject("PartDesign::Pad", "Pad004")
pad5.Profile = sketch12
pad5.Length = 10
pad5.Reversed = True

sketch13 = body.newObject("Sketcher::SketchObject", "Sketch012")
sketch13.AttachmentSupport = (doc.getObject("XZ_Plane"), [""])
sketch13.MapMode = "FlatFace"
add_polygon(sketch13, [(-10, -168), (-44, -168), (-44, -178), (-10, -178)])
sketch13.addConstraint(Sketcher.Constraint("Horizontal", 0))
sketch13.addConstraint(Sketcher.Constraint("Vertical", 1))
sketch13.addConstraint(Sketcher.Constraint("Horizontal", 2))
sketch13.addConstraint(Sketcher.Constraint("Vertical", 3))
sketch13.addConstraint(Sketcher.Constraint("DistanceX", 0, 2, 0, 1, Q("34 mm")))
sketch13.addConstraint(Sketcher.Constraint("DistanceY", 1, 2, 1, 1, Q("10 mm")))
sketch13.addConstraint(Sketcher.Constraint("DistanceX", 0, 2, -1, 1, Q("44 mm")))
sketch13.addConstraint(Sketcher.Constraint("DistanceY", 0, 2, -1, 1, Q("168 mm")))
pocket2 = body.newObject("PartDesign::Pocket", "Pocket001")
pocket2.Profile = sketch13
pocket2.Length = 10

sketch14 = body.newObject("Sketcher::SketchObject", "Sketch013")
sketch14.AttachmentSupport = (doc.getObject("XY_Plane"), [""])
sketch14.MapMode = "FlatFace"
sketch14.AttachmentOffset = App.Placement(Vector(0, 0, -128), App.Rotation())
sketch14.addGeometry(Part.Circle(Vector(-37, 5, 0), Vector(0, 0, 1), 3.25), False)
sketch14.addGeometry(Part.Circle(Vector(-17, 5, 0), Vector(0, 0, 1), 3.25), False)
sketch14.addConstraint(Sketcher.Constraint("Equal", 0, 1))
sketch14.addConstraint(Sketcher.Constraint("Horizontal", 0, 3, 1, 3))
sketch14.addConstraint(Sketcher.Constraint("Diameter", 0, Q("6.5 mm")))
sketch14.addConstraint(Sketcher.Constraint("DistanceY", -1, 1, 0, 3, Q("5 mm")))
sketch14.addConstraint(Sketcher.Constraint("DistanceX", 0, 3, -1, 1, Q("37 mm")))
sketch14.addConstraint(Sketcher.Constraint("DistanceX", 1, 3, -1, 1, Q("17 mm")))
pocket3 = body.newObject("PartDesign::Pocket", "Pocket002")
pocket3.Profile = sketch14
pocket3.Length = 5
pocket3.Reversed = True

sketch15 = body.newObject("Sketcher::SketchObject", "Sketch014")
sketch15.AttachmentSupport = (doc.getObject("XZ_Plane"), [""])
sketch15.MapMode = "FlatFace"
sketch15.AttachmentOffset = App.Placement(Vector(0, 0, -20), App.Rotation())
add_polygon(sketch15, [(-100, -168), (-100, -158), (-90, -158), (-90, -168)])
add_polygon(sketch15, [(-10, -178), (-10, -168), (0, -168), (0, -178)])
sketch15.addConstraint(Sketcher.Constraint("Vertical", 0))
sketch15.addConstraint(Sketcher.Constraint("Horizontal", 1))
sketch15.addConstraint(Sketcher.Constraint("Vertical", 2))
sketch15.addConstraint(Sketcher.Constraint("Horizontal", 3))
sketch15.addConstraint(Sketcher.Constraint("Vertical", 4))
sketch15.addConstraint(Sketcher.Constraint("Horizontal", 5))
sketch15.addConstraint(Sketcher.Constraint("Vertical", 6))
sketch15.addConstraint(Sketcher.Constraint("Horizontal", 7))
sketch15.addConstraint(Sketcher.Constraint("PointOnObject", 5, 2, -2))
sketch15.addConstraint(Sketcher.Constraint("Horizontal", 3, 2, 4, 2))
sketch15.addConstraint(Sketcher.Constraint("Equal", 3, 5))
sketch15.addConstraint(Sketcher.Constraint("Equal", 7, 0))
sketch15.addConstraint(Sketcher.Constraint("Equal", 2, 4))
sketch15.addConstraint(Sketcher.Constraint("DistanceX", 1, 1, 1, 2, Q("10 mm")))
sketch15.addConstraint(Sketcher.Constraint("DistanceX", 0, 2, -1, 1, Q("100 mm")))
sketch15.addConstraint(Sketcher.Constraint("DistanceY", 0, 2, -1, 1, Q("158 mm")))
pocket4 = body.newObject("PartDesign::Pocket", "Pocket003")
pocket4.Profile = sketch15
pocket4.Length = 10
pocket4.Reversed = True

sketch16 = body.newObject("Sketcher::SketchObject", "Sketch015")
sketch16.AttachmentSupport = (doc.getObject("XZ_Plane"), [""])
sketch16.MapMode = "FlatFace"
sketch16.AttachmentOffset = App.Placement(Vector(0, 0, -10), App.Rotation())
add_polygon(sketch16, [(-10, -168), (-10, -158), (0, -158), (0, -168)])
add_polygon(sketch16, [(-100, -178), (-100, -168), (-90, -168), (-90, -178)])
sketch16.addConstraint(Sketcher.Constraint("Vertical", 0))
sketch16.addConstraint(Sketcher.Constraint("Horizontal", 1))
sketch16.addConstraint(Sketcher.Constraint("Vertical", 2))
sketch16.addConstraint(Sketcher.Constraint("Horizontal", 3))
sketch16.addConstraint(Sketcher.Constraint("Vertical", 4))
sketch16.addConstraint(Sketcher.Constraint("Horizontal", 5))
sketch16.addConstraint(Sketcher.Constraint("Vertical", 6))
sketch16.addConstraint(Sketcher.Constraint("Horizontal", 7))
sketch16.addConstraint(Sketcher.Constraint("PointOnObject", 1, 2, -2))
sketch16.addConstraint(Sketcher.Constraint("Horizontal", 3, 2, 4, 2))
sketch16.addConstraint(Sketcher.Constraint("Equal", 3, 5))
sketch16.addConstraint(Sketcher.Constraint("Equal", 7, 0))
sketch16.addConstraint(Sketcher.Constraint("Equal", 2, 4))
sketch16.addConstraint(Sketcher.Constraint("DistanceX", 1, 1, 1, 2, Q("10 mm")))
sketch16.addConstraint(Sketcher.Constraint("DistanceY", 0, 2, -1, 1, Q("158 mm")))
sketch16.addConstraint(Sketcher.Constraint("DistanceX", 4, 2, -1, 1, Q("100 mm")))
pad6 = body.newObject("PartDesign::Pad", "Pad005")
pad6.Profile = sketch16
pad6.Length = 10
pad6.Reversed = True

sketch17 = body.newObject("Sketcher::SketchObject", "Sketch016")
sketch17.AttachmentSupport = (doc.getObject("XY_Plane"), [""])
sketch17.MapMode = "FlatFace"
sketch17.AttachmentOffset = App.Placement(Vector(0, 0, -168), App.Rotation())
sketch17.addGeometry(Part.Circle(Vector(-5, 15, 0), Vector(0, 0, 1), 2.15), False)
sketch17.addConstraint(Sketcher.Constraint("Diameter", 0, Q("4.3 mm")))
sketch17.addConstraint(Sketcher.Constraint("DistanceX", 0, 3, -1, 1, Q("5 mm")))
sketch17.addConstraint(Sketcher.Constraint("DistanceY", -1, 1, 0, 3, Q("15 mm")))
doc.recompute()
hole7 = body.newObject("PartDesign::Hole", "Hole006")
hole7.Profile = sketch17
hole7.ThreadType = "None"
hole7.Diameter = 4.3
hole7.DepthType = "Dimension"
hole7.Depth = 10
hole7.DrillPoint = "Angled"
hole7.DrillPointAngle = 118
hole7.Reversed = True

sketch18 = body.newObject("Sketcher::SketchObject", "Sketch017")
sketch18.AttachmentSupport = (doc.getObject("YZ_Plane"), [""])
sketch18.MapMode = "FlatFace"
sketch18.AttachmentOffset = App.Placement(Vector(0, 0, -100), App.Rotation())
sketch18.addGeometry(Part.Circle(Vector(15, -173, 0), Vector(0, 0, 1), 2.15), False)
sketch18.addConstraint(Sketcher.Constraint("Diameter", 0, Q("4.3 mm")))
sketch18.addConstraint(Sketcher.Constraint("DistanceX", -1, 1, 0, 3, Q("15 mm")))
sketch18.addConstraint(Sketcher.Constraint("DistanceY", 0, 3, -1, 1, Q("173 mm")))
doc.recompute()
hole8 = body.newObject("PartDesign::Hole", "Hole007")
hole8.Profile = sketch18
hole8.ThreadType = "None"
hole8.Diameter = 4.3
hole8.DepthType = "Dimension"
hole8.Depth = 10
hole8.DrillPoint = "Angled"
hole8.DrillPointAngle = 118
hole8.Reversed = True

doc.recompute()
